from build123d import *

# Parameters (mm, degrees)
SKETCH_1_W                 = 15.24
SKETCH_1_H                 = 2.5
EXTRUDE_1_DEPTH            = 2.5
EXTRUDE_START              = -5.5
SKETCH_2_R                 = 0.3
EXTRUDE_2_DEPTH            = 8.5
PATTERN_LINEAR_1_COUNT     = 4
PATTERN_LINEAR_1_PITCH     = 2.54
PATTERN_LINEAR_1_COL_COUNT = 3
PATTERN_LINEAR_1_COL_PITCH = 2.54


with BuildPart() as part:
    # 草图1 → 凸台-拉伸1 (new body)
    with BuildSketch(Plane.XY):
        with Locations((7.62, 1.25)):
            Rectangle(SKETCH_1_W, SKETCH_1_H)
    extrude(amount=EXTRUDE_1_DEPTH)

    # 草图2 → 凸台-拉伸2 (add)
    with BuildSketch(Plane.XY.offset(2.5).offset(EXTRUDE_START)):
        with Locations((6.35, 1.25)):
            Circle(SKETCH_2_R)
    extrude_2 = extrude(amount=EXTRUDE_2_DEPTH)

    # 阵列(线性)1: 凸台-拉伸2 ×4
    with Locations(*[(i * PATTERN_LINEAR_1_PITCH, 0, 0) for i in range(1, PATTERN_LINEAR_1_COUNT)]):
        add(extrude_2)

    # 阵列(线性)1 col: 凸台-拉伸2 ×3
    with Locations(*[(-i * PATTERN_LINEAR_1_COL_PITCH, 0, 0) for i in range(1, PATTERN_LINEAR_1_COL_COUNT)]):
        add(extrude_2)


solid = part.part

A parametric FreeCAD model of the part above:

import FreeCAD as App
import Part
import Sketcher

V = App.Vector
Q = App.Units.Quantity


def add_polygon(sketch, points):
    """Adds a closed chain of lines whose ends are joined by coincident constraints."""
    first, n = sketch.GeometryCount, len(points)
    for a, b in zip(points, points[1:] + points[:1]):
        sketch.addGeometry(Part.LineSegment(App.Vector(*a, 0), App.Vector(*b, 0)), False)
    for i in range(n):
        sketch.addConstraint(Sketcher.Constraint("Coincident", first + i, 2, first + (i + 1) % n, 1))

doc = App.newDocument("Part")
params = doc.addObject("Spreadsheet::Sheet", "Params")
for row, (alias, value) in enumerate([
    ("sketch1_height", "2.5 mm"),
    ("sketch1_width", "15.24 mm"),
    ("pad1_length", "2.5 mm"),
    ("sketch2_diameter", "0.6 mm"),
    ("pad2_length", "8.5 mm"),
    ("linearpattern_pitch", "2.54 mm"),
    ("linearpattern2_pitch", "2.54 mm"),
], start=1):
    params.set(f"A{row}", alias)
    params.set(f"B{row}", "=" + value)
    params.setAlias(f"B{row}", alias)

body = doc.addObject("PartDesign::Body", "Body")

# Sketch on XY plane
sketch1 = body.newObject("Sketcher::SketchObject", "Sketch")
sketch1.AttachmentSupport = (doc.getObject("XY_Plane"), [""])
sketch1.MapMode = "FlatFace"
add_polygon(sketch1, [(0, 2.5), (0, 0), (15.2, 0), (15.2, 2.5)])  # lines 0-3
sketch1.addConstraint([
    Sketcher.Constraint("Vertical", 0),
    Sketcher.Constraint("Horizontal", 1),
    Sketcher.Constraint("Vertical", 2),
    Sketcher.Constraint("Horizontal", 3),
    Sketcher.Constraint("Coincident", 0, 2, -1, 1),
    Sketcher.Constraint("DistanceY", 0, 2, 0, 1, Q("2.5 mm")),
    Sketcher.Constraint("DistanceX", 1, 1, 1, 2, Q("15.24 mm")),
])
sketch1.setExpression("Constraints[9]", "Params.sketch1_height")
sketch1.setExpression("Constraints[10]", "Params.sketch1_width")
pad1 = body.newObject("PartDesign::Pad", "Pad")
pad1.Profile = sketch1
pad1.setExpression("Length", "Params.pad1_length")

# Sketch on XY plane
sketch2 = body.newObject("Sketcher::SketchObject", "Sketch001")
sketch2.AttachmentSupport = (doc.getObject("XY_Plane"), [""])
sketch2.MapMode = "FlatFace"
sketch2.AttachmentOffset = App.Placement(V(0, 0, -3), App.Rotation())
sketch2.addGeometry(Part.Circle(V(6.35, 1.25, 0), V(0, 0, 1), 0.3), False)
sketch2.addConstraint([
    Sketcher.Constraint("Diameter", 0, Q("0.6 mm")),
    Sketcher.Constraint("DistanceX", -1, 1, 0, 3, Q("6.35 mm")),
    Sketcher.Constraint("DistanceY", -1, 1, 0, 3, Q("1.25 mm")),
])
sketch2.setExpression("Constraints[0]", "Params.sketch2_diameter")
pad2 = body.newObject("PartDesign::Pad", "Pad001")
pad2.Profile = sketch2
pad2.setExpression("Length", "Params.pad2_length")
doc.recompute()

linearpattern = body.newObject("PartDesign::LinearPattern", "LinearPattern")
linearpattern.Originals = [pad2]
linearpattern.Direction = (doc.getObject("X_Axis"), [""])
linearpattern.Mode = "offset"
linearpattern.setExpression("Offset", "Params.linearpattern_pitch")
linearpattern.Occurrences = 4
body.Tip = linearpattern
doc.recompute()

linearpattern2 = body.newObject("PartDesign::LinearPattern", "LinearPattern001")
linearpattern2.Originals = [pad2]
linearpattern2.Direction = (doc.getObject("X_Axis"), [""])
linearpattern2.Mode = "offset"
linearpattern2.setExpression("Offset", "Params.linearpattern2_pitch")
linearpattern2.Occurrences = 3
linearpattern2.Reversed = True
body.Tip = linearpattern2

doc.recompute()
